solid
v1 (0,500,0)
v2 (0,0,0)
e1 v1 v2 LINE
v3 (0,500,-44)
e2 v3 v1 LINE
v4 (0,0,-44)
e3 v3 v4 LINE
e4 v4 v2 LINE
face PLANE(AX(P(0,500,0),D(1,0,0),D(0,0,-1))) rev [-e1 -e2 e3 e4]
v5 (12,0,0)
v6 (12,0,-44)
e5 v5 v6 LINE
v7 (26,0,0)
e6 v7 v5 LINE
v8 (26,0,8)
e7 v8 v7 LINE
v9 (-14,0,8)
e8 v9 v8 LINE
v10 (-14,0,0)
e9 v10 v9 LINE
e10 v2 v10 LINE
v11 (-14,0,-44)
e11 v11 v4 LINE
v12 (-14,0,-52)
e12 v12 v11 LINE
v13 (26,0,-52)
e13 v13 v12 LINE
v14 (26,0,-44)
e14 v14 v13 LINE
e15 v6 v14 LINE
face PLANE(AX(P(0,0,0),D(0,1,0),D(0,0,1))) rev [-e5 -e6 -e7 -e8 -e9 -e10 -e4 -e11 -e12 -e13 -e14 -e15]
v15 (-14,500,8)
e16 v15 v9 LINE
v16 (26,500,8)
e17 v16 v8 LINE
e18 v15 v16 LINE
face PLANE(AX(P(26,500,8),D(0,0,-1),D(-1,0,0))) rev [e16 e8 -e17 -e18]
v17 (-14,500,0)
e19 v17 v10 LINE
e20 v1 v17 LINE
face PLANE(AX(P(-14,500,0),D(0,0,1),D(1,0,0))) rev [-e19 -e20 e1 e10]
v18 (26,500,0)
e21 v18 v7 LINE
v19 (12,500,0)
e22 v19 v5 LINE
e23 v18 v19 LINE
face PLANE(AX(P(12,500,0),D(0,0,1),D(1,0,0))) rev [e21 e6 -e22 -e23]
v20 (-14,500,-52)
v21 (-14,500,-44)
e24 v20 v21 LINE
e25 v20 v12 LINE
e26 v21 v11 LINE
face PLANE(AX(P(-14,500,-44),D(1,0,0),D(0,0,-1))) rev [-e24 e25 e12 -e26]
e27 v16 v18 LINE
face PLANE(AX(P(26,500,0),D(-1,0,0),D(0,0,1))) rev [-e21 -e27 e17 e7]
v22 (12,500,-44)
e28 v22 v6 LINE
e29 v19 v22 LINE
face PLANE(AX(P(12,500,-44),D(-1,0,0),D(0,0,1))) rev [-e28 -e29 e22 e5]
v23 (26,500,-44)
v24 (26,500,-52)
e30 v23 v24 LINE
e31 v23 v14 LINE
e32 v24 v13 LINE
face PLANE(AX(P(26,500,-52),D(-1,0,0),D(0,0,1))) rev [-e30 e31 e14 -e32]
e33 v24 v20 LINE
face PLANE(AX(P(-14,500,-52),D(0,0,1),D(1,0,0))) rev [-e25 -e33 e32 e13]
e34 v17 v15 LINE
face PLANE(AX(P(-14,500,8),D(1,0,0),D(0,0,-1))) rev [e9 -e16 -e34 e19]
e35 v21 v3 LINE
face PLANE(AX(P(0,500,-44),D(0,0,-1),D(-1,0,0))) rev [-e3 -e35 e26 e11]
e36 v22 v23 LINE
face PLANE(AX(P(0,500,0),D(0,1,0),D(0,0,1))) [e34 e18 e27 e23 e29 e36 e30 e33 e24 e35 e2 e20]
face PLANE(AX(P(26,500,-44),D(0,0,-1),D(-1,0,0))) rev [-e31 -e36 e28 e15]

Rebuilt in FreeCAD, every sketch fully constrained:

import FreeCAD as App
import Part
import Sketcher
Q = App.Units.Quantity


def add_polygon(sketch, points):
    """Adds a closed chain of lines whose ends are joined by coincident constraints."""
    first, n = sketch.GeometryCount, len(points)
    for a, b in zip(points, points[1:] + points[:1]):
        sketch.addGeometry(Part.LineSegment(App.Vector(*a, 0), App.Vector(*b, 0)), False)
    for i in range(n):
        sketch.addConstraint(Sketcher.Constraint("Coincident", first + i, 2, first + (i + 1) % n, 1))

doc = App.newDocument("Part")
body = doc.addObject("PartDesign::Body", "Body")

sketch1 = body.newObject("Sketcher::SketchObject", "Sketch")
sketch1.AttachmentSupport = (doc.getObject("XZ_Plane"), [""])
sketch1.MapMode = "FlatFace"
add_polygon(sketch1, [(0, -44), (0, 0), (-14, 0), (-14, 8), (26, 8), (26, 0), (12, 0), (12, -44), (26, -44), (26, -52), (-14, -52), (-14, -44)])
sketch1.addConstraint(Sketcher.Constraint("Vertical", 0))
sketch1.addConstraint(Sketcher.Constraint("Horizontal", 1))
sketch1.addConstraint(Sketcher.Constraint("Vertical", 2))
sketch1.addConstraint(Sketcher.Constraint("Horizontal", 3))
sketch1.addConstraint(Sketcher.Constraint("Vertical", 4))
sketch1.addConstraint(Sketcher.Constraint("Horizontal", 5))
sketch1.addConstraint(Sketcher.Constraint("Vertical", 6))
sketch1.addConstraint(Sketcher.Constraint("Horizontal", 7))
sketch1.addConstraint(Sketcher.Constraint("Vertical", 8))
sketch1.addConstraint(Sketcher.Constraint("Horizontal", 9))
sketch1.addConstraint(Sketcher.Constraint("Vertical", 10))
sketch1.addConstraint(Sketcher.Constraint("Horizontal", 11))
sketch1.addConstraint(Sketcher.Constraint("Coincident", 0, 2, -1, 1))
sketch1.addConstraint(Sketcher.Constraint("PointOnObject", 4, 2, -1))
sketch1.addConstraint(Sketcher.Constraint("Horizontal", 7, 2, 10, 2))
sketch1.addConstraint(Sketcher.Constraint("Vertical", 4, 2, 7, 2))
sketch1.addConstraint(Sketcher.Constraint("Vertical", 2, 2, 9, 2))
sketch1.addConstraint(Sketcher.Constraint("Equal", 1, 5))
sketch1.addConstraint(Sketcher.Constraint("Equal", 4, 8))
sketch1.addConstraint(Sketcher.Constraint("DistanceX", 1, 2, 1, 1, Q("14 mm")))
sketch1.addConstraint(Sketcher.Constraint("DistanceX", 3, 1, 3, 2, Q("40 mm")))
sketch1.addConstraint(Sketcher.Constraint("DistanceY", 0, 1, 0, 2, Q("44 mm")))
sketch1.addConstraint(Sketcher.Constraint("DistanceY", 2, 1, 2, 2, Q("8 mm")))
pad1 = body.newObject("PartDesign::Pad", "Pad")
pad1.Profile = sketch1
pad1.Length = 500
pad1.Reversed = True

doc.recompute()
